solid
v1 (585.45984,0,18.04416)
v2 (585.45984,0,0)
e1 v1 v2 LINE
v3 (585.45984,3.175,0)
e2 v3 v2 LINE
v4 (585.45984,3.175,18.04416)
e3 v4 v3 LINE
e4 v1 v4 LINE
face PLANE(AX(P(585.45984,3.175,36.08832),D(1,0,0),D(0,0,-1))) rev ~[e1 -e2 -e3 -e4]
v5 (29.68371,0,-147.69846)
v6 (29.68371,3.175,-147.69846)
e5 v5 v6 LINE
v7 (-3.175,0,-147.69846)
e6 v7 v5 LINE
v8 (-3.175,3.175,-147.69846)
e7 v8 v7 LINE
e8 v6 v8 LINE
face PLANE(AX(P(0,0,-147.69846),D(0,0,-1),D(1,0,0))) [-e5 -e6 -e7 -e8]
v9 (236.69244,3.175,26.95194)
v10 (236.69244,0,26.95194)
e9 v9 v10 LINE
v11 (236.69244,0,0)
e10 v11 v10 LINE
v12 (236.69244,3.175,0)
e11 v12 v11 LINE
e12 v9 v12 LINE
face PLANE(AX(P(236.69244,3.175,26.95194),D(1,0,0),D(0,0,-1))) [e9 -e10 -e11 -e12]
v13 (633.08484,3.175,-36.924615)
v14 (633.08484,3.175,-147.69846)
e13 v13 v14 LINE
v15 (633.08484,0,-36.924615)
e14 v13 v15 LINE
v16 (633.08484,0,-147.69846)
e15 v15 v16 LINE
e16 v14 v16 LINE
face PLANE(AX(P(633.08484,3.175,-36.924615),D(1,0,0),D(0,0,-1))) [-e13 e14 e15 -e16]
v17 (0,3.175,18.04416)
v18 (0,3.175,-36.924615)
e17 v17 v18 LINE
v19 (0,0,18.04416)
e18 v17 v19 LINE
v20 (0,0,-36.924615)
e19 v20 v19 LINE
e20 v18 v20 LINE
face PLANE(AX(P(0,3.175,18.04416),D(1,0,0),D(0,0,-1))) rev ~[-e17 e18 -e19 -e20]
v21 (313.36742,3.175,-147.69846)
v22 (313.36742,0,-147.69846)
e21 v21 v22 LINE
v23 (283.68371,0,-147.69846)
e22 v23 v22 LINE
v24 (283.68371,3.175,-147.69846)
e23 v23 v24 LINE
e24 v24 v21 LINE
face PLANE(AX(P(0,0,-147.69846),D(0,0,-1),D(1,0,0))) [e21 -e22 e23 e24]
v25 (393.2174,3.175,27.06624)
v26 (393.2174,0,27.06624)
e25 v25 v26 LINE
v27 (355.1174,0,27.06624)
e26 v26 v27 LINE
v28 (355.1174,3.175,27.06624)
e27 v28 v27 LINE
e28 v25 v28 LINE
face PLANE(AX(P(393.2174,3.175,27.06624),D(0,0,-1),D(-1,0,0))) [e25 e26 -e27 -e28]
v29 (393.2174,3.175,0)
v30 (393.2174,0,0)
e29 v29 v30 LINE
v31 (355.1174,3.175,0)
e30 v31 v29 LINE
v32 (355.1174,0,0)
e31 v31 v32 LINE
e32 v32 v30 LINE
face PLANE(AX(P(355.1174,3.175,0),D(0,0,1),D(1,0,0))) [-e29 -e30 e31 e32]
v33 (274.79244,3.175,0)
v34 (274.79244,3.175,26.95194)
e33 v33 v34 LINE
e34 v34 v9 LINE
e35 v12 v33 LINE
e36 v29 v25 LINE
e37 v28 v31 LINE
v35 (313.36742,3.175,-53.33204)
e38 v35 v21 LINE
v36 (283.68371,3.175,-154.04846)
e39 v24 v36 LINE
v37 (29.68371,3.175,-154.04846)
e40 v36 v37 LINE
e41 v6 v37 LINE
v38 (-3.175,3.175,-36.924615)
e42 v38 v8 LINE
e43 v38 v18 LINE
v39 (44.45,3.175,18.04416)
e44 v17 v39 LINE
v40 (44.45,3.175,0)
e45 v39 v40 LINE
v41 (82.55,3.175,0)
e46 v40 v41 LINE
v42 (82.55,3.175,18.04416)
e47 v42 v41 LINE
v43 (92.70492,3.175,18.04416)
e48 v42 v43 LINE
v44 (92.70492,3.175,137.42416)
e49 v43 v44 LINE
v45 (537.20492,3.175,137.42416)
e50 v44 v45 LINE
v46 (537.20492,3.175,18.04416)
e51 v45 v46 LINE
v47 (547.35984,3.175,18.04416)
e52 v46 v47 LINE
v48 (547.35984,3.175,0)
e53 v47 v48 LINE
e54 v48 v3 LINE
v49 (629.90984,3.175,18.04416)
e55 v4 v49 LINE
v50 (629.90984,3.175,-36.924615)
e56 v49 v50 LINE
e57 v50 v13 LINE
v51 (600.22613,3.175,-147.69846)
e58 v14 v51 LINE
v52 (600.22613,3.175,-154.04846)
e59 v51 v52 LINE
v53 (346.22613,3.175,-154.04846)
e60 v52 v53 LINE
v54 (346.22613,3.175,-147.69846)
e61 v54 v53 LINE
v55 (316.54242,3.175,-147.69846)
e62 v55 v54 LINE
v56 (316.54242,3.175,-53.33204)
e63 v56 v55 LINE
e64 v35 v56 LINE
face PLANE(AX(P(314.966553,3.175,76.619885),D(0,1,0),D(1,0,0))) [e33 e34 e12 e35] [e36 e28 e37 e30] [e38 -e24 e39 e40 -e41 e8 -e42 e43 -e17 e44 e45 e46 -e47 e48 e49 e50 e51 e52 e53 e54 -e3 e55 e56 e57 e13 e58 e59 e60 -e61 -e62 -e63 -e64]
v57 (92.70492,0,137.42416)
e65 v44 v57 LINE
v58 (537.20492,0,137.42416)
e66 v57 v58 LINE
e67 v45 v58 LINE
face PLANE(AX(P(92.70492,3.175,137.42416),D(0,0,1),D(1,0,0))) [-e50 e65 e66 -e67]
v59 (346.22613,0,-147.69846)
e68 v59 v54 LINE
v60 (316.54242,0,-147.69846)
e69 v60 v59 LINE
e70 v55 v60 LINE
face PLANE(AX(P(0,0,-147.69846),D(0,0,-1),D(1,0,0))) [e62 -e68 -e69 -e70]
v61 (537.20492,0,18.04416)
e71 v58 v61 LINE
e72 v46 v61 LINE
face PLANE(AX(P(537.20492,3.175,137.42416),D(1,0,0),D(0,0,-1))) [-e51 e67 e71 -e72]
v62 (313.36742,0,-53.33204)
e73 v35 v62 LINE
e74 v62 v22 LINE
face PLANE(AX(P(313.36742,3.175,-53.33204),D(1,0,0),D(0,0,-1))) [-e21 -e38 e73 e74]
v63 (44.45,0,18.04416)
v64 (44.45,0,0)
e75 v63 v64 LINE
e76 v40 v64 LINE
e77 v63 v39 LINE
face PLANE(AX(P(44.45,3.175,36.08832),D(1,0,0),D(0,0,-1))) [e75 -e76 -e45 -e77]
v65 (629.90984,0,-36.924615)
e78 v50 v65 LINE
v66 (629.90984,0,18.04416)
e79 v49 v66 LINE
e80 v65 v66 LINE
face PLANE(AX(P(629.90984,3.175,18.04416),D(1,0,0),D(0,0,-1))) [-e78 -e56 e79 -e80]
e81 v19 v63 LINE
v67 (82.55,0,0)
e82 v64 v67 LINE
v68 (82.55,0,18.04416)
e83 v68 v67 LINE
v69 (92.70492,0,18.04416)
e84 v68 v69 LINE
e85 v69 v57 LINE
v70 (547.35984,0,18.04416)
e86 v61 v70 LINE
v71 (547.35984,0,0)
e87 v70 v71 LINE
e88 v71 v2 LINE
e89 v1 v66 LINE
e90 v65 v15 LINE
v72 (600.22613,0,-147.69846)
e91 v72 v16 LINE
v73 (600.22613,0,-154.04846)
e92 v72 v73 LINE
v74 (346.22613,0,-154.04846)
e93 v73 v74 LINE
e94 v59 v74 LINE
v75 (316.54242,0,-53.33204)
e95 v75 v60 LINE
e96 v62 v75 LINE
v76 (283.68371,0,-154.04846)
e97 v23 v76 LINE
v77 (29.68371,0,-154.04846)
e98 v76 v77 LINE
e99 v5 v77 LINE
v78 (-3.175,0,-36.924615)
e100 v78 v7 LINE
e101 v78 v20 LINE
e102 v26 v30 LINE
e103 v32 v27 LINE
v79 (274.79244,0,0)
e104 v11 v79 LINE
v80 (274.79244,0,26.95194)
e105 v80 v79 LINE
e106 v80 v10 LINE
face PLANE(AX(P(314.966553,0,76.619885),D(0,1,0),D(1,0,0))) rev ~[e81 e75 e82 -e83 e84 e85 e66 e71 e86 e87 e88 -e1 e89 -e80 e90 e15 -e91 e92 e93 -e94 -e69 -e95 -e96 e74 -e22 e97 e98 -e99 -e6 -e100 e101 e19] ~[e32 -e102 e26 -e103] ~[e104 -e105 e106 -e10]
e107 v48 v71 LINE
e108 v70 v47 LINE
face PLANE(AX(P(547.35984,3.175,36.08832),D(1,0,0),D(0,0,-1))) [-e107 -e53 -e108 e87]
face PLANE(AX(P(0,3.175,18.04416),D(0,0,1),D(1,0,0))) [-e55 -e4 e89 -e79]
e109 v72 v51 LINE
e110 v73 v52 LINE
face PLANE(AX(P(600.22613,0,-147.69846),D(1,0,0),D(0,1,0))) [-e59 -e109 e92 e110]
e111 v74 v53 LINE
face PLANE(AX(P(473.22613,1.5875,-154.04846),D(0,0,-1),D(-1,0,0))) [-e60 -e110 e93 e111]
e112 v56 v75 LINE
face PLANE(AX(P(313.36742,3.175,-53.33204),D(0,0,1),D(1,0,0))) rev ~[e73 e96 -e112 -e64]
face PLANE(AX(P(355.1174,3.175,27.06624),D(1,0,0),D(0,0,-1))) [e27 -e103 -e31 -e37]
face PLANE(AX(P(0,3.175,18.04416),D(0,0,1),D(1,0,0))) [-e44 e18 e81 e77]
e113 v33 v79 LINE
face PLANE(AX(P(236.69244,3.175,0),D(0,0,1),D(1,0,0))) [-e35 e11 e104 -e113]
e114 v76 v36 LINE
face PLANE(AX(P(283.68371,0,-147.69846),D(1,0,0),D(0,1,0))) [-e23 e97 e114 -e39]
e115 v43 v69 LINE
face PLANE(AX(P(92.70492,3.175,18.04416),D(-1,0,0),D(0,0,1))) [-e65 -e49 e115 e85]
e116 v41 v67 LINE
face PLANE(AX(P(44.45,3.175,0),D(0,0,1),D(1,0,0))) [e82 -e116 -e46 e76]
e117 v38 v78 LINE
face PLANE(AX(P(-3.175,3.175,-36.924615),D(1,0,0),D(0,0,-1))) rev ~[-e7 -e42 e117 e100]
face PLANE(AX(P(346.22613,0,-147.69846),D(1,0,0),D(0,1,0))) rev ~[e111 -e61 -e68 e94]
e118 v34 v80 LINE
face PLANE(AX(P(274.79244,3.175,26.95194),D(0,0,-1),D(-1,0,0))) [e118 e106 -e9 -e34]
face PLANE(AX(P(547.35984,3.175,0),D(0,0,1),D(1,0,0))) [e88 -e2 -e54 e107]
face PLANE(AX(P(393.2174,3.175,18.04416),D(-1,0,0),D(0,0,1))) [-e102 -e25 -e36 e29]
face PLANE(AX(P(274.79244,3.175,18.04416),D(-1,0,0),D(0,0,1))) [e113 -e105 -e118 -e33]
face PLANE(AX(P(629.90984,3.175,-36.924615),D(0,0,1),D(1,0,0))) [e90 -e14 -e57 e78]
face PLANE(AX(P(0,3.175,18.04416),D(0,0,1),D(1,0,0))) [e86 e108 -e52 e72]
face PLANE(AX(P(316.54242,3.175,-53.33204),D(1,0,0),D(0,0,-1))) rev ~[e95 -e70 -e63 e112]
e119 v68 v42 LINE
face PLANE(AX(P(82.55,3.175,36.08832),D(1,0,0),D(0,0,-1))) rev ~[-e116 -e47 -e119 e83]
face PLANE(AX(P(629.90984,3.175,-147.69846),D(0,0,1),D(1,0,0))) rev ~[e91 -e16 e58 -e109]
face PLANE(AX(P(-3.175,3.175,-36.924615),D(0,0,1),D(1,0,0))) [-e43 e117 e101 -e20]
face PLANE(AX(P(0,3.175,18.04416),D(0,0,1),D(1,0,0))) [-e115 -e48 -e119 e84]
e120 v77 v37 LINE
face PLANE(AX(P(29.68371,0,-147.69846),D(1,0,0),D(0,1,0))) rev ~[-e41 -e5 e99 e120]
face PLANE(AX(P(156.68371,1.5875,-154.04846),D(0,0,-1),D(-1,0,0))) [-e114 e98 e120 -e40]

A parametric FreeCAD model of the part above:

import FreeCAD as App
import Part
import Sketcher
from FreeCAD import Vector
Q = App.Units.Quantity

doc = App.newDocument("Part")
params = doc.addObject("Spreadsheet::Sheet", "Params")
for row, (alias, value) in enumerate([
    ("pad1_length", "0.125 in"),
    ("sketch2_width", "10 in"),
    ("sketch2_height", "0.125 in"),
    ("pad2_length", "0.25 in"),
    ("sketch3_width", "0.125 in"),
    ("pocket1_length", "0.125 in"),
    ("sketch4_width", "0.125 in"),
    ("pad3_length", "0.125 in"),
    ("pad4_length", "0.125 in"),
    ("sketch6_width", "1.5 in"),
    ("sketch7_width", "17.5 in"),
    ("sketch7_width2", "1.5 in"),
    ("sketch7_height", "4.7 in"),
    ("pad5_length", "0.125 in"),
], start=1):
    params.set(f"A{row}", alias)
    params.set(f"B{row}", "=" + value)
    params.setAlias(f"B{row}", alias)

body = doc.addObject("PartDesign::Body", "Body")

sketch1 = body.newObject("Sketcher::SketchObject", "Sketch")
sketch1.AttachmentSupport = (doc.getObject("XZ_Plane"), [""])
sketch1.MapMode = "FlatFace"
sketch1.addGeometry([
    Part.LineSegment(Vector(0, -148, 0), Vector(0, 0, 0)),
    Part.LineSegment(Vector(0, 0, 0), Vector(630, 0, 0)),
    Part.LineSegment(Vector(630, 0, 0), Vector(630, -148, 0)),
    Part.LineSegment(Vector(630, -148, 0), Vector(0, -148, 0)),
], False)
sketch1.addConstraint([
    Sketcher.Constraint("Coincident", 0, 2, 1, 1),
    Sketcher.Constraint("Coincident", 1, 2, 2, 1),
    Sketcher.Constraint("Coincident", 2, 2, 3, 1),
    Sketcher.Constraint("Coincident", 3, 2, 0, 1),
    Sketcher.Constraint("Vertical", 0),
    Sketcher.Constraint("Horizontal", 1),
    Sketcher.Constraint("Vertical", 2),
    Sketcher.Constraint("Horizontal", 3),
    Sketcher.Constraint("Coincident", 0, 2, -1, 1),
    Sketcher.Constraint("DistanceX", 1, 1, 1, 2, Q("24.7996 in")),
    Sketcher.Constraint("DistanceY", 0, 1, 0, 2, Q("5.8149 in")),
])
pad1 = body.newObject("PartDesign::Pad", "Pad")
pad1.Profile = sketch1
pad1.setExpression("Length", "Params.pad1_length")
pad1.Reversed = True

sketch2 = body.newObject("Sketcher::SketchObject", "Sketch001")
sketch2.AttachmentSupport = (doc.getObject("XY_Plane"), [""])
sketch2.MapMode = "FlatFace"
sketch2.AttachmentOffset = App.Placement(Vector(0, 0, -5.8149 * 25.4), App.Rotation())
sketch2.addGeometry([
    Part.LineSegment(Vector(600.2, 3.2, 0), Vector(600.2, 0, 0)),
    Part.LineSegment(Vector(600.2, 0, 0), Vector(346.2, 0, 0)),
    Part.LineSegment(Vector(346.2, 0, 0), Vector(346.2, 3.2, 0)),
    Part.LineSegment(Vector(346.2, 3.2, 0), Vector(600.2, 3.2, 0)),
    Part.LineSegment(Vector(283.7, 3.2, 0), Vector(283.7, 0, 0)),
    Part.LineSegment(Vector(283.7, 0, 0), Vector(29.7, 0, 0)),
    Part.LineSegment(Vector(29.7, 0, 0), Vector(29.7, 3.2, 0)),
    Part.LineSegment(Vector(29.7, 3.2, 0), Vector(283.7, 3.2, 0)),
], False)
sketch2.addConstraint([
    Sketcher.Constraint("Coincident", 0, 2, 1, 1),
    Sketcher.Constraint("Coincident", 1, 2, 2, 1),
    Sketcher.Constraint("Coincident", 2, 2, 3, 1),
    Sketcher.Constraint("Coincident", 3, 2, 0, 1),
    Sketcher.Constraint("Coincident", 4, 2, 5, 1),
    Sketcher.Constraint("Coincident", 5, 2, 6, 1),
    Sketcher.Constraint("Coincident", 6, 2, 7, 1),
    Sketcher.Constraint("Coincident", 7, 2, 4, 1),
    Sketcher.Constraint("Vertical", 0),
    Sketcher.Constraint("Horizontal", 1),
    Sketcher.Constraint("Vertical", 2),
    Sketcher.Constraint("Horizontal", 3),
    Sketcher.Constraint("Vertical", 4),
    Sketcher.Constraint("Horizontal", 5),
    Sketcher.Constraint("Vertical", 6),
    Sketcher.Constraint("Horizontal", 7),
    Sketcher.Constraint("PointOnObject", 0, 2, -1),
    Sketcher.Constraint("PointOnObject", 4, 2, -1),
    Sketcher.Constraint("Horizontal", 3, 2, 6, 2),
    Sketcher.Constraint("Equal", 3, 5),
    Sketcher.Constraint("DistanceX", 1, 2, 1, 1, Q("10 in")),
    Sketcher.Constraint("DistanceY", 0, 2, 0, 1, Q("0.125 in")),
    Sketcher.Constraint("DistanceX", 4, 2, 1, 2, Q("2.4623 in")),
    Sketcher.Constraint("DistanceX", -1, 1, 0, 2, 600.22613),
])
sketch2.setExpression("Constraints[20]", "Params.sketch2_width")
sketch2.setExpression("Constraints[21]", "Params.sketch2_height")
pad2 = body.newObject("PartDesign::Pad", "Pad001")
pad2.Profile = sketch2
pad2.setExpression("Length", "Params.pad2_length")
pad2.Reversed = True

sketch3 = body.newObject("Sketcher::SketchObject", "Sketch002")
sketch3.AttachmentSupport = (doc.getObject("XZ_Plane"), [""])
sketch3.MapMode = "FlatFace"
sketch3.AttachmentOffset = App.Placement(Vector(0, 0, -0.125 * 25.4), App.Rotation())
sketch3.addGeometry([
    Part.LineSegment(Vector(313.4, -242.1, 0), Vector(313.4, -53.3, 0)),
    Part.LineSegment(Vector(313.4, -53.3, 0), Vector(316.5, -53.3, 0)),
    Part.LineSegment(Vector(316.5, -53.3, 0), Vector(316.5, -242.1, 0)),
    Part.LineSegment(Vector(316.5, -242.1, 0), Vector(313.4, -242.1, 0)),
], False)
sketch3.addConstraint([
    Sketcher.Constraint("Coincident", 0, 2, 1, 1),
    Sketcher.Constraint("Coincident", 1, 2, 2, 1),
    Sketcher.Constraint("Coincident", 2, 2, 3, 1),
    Sketcher.Constraint("Coincident", 3, 2, 0, 1),
    Sketcher.Constraint("Vertical", 0),
    Sketcher.Constraint("Horizontal", 1),
    Sketcher.Constraint("Vertical", 2),
    Sketcher.Constraint("Horizontal", 3),
    Sketcher.Constraint("DistanceX", 1, 1, 1, 2, Q("0.125 in")),
    Sketcher.Constraint("DistanceX", -1, 1, 0, 2, Q("12.3373 in")),
    Sketcher.Constraint("DistanceY", 0, 1, 0, 2, 188.73284),
    Sketcher.Constraint("DistanceY", 0, 2, -1, 1, 53.33204),
])
sketch3.setExpression("Constraints[8]", "Params.sketch3_width")
pocket1 = body.newObject("PartDesign::Pocket", "Pocket")
pocket1.Profile = sketch3
pocket1.setExpression("Length", "Params.pocket1_length")
pocket1.Reversed = True

sketch4 = body.newObject("Sketcher::SketchObject", "Sketch003")
sketch4.AttachmentSupport = (doc.getObject("XZ_Plane"), [""])
sketch4.MapMode = "FlatFace"
sketch4.AttachmentOffset = App.Placement(Vector(0, 0, -0.125 * 25.4), App.Rotation())
sketch4.addGeometry([
    Part.LineSegment(Vector(629.9, -147.7, 0), Vector(629.9, -36.9, 0)),
    Part.LineSegment(Vector(629.9, -36.9, 0), Vector(633.1, -36.9, 0)),
    Part.LineSegment(Vector(633.1, -36.9, 0), Vector(633.1, -147.7, 0)),
    Part.LineSegment(Vector(633.1, -147.7, 0), Vector(629.9, -147.7, 0)),
    Part.LineSegment(Vector(-3.2, -147.7, 0), Vector(-3.2, -36.9, 0)),
    Part.LineSegment(Vector(-3.2, -36.9, 0), Vector(0, -36.9, 0)),
    Part.LineSegment(Vector(0, -36.9, 0), Vector(0, -147.7, 0)),
    Part.LineSegment(Vector(0, -147.7, 0), Vector(-3.2, -147.7, 0)),
], False)
sketch4.addConstraint([
    Sketcher.Constraint("Coincident", 0, 2, 1, 1),
    Sketcher.Constraint("Coincident", 1, 2, 2, 1),
    Sketcher.Constraint("Coincident", 2, 2, 3, 1),
    Sketcher.Constraint("Coincident", 3, 2, 0, 1),
    Sketcher.Constraint("Coincident", 4, 2, 5, 1),
    Sketcher.Constraint("Coincident", 5, 2, 6, 1),
    Sketcher.Constraint("Coincident", 6, 2, 7, 1),
    Sketcher.Constraint("Coincident", 7, 2, 4, 1),
    Sketcher.Constraint("Vertical", 0),
    Sketcher.Constraint("Horizontal", 1),
    Sketcher.Constraint("Vertical", 2),
    Sketcher.Constraint("Horizontal", 3),
    Sketcher.Constraint("Vertical", 4),
    Sketcher.Constraint("Horizontal", 5),
    Sketcher.Constraint("Vertical", 6),
    Sketcher.Constraint("Horizontal", 7),
    Sketcher.Constraint("PointOnObject", 5, 2, -2),
    Sketcher.Constraint("Horizontal", 1, 2, 4, 2),
    Sketcher.Constraint("Horizontal", 3, 2, 6, 2),
    Sketcher.Constraint("Equal", 3, 5),
    Sketcher.Constraint("DistanceX", 1, 1, 1, 2, Q("0.125 in")),
    Sketcher.Constraint("DistanceX", -1, 1, 0, 2, Q("24.7996 in")),
    Sketcher.Constraint("DistanceY", 2, 2, -1, 1, Q("5.8149 in")),
    Sketcher.Constraint("DistanceY", 0, 1, 0, 2, 110.773845),
])
sketch4.setExpression("Constraints[20]", "Params.sketch4_width")
pad3 = body.newObject("PartDesign::Pad", "Pad002")
pad3.Profile = sketch4
pad3.setExpression("Length", "Params.pad3_length")

sketch5 = body.newObject("Sketcher::SketchObject", "Sketch004")
sketch5.AttachmentSupport = (doc.getObject("XZ_Plane"), [""])
sketch5.MapMode = "FlatFace"
sketch5.AttachmentOffset = App.Placement(Vector(0, 0, -0.125 * 25.4), App.Rotation())
sketch5.addGeometry([
    Part.LineSegment(Vector(0, 0, 0), Vector(0, 18, 0)),
    Part.LineSegment(Vector(0, 18, 0), Vector(630, 18, 0)),
    Part.LineSegment(Vector(630, 18, 0), Vector(630, 0, 0)),
    Part.LineSegment(Vector(630, 0, 0), Vector(0, 0, 0)),
], False)
sketch5.addConstraint([
    Sketcher.Constraint("Coincident", 0, 2, 1, 1),
    Sketcher.Constraint("Coincident", 1, 2, 2, 1),
    Sketcher.Constraint("Coincident", 2, 2, 3, 1),
    Sketcher.Constraint("Coincident", 3, 2, 0, 1),
    Sketcher.Constraint("Vertical", 0),
    Sketcher.Constraint("Horizontal", 1),
    Sketcher.Constraint("Vertical", 2),
    Sketcher.Constraint("Horizontal", 3),
    Sketcher.Constraint("Coincident", 3, 2, -1, 1),
    Sketcher.Constraint("DistanceX", 1, 1, 1, 2, Q("24.7996 in")),
    Sketcher.Constraint("DistanceY", 0, 1, 0, 2, Q("0.7104 in")),
])
pad4 = body.newObject("PartDesign::Pad", "Pad003")
pad4.Profile = sketch5
pad4.setExpression("Length", "Params.pad4_length")

sketch6 = body.newObject("Sketcher::SketchObject", "Sketch005")
sketch6.AttachmentSupport = (doc.getObject("XZ_Plane"), [""])
sketch6.MapMode = "FlatFace"
sketch6.AttachmentOffset = App.Placement(Vector(0, 0, -0.125 * 25.4), App.Rotation())
sketch6.addGeometry([
    Part.LineSegment(Vector(355, 0, 0), Vector(355, 18, 0)),
    Part.LineSegment(Vector(355, 18, 0), Vector(393, 18, 0)),
    Part.LineSegment(Vector(393, 18, 0), Vector(393, 0, 0)),
    Part.LineSegment(Vector(393, 0, 0), Vector(355, 0, 0)),
    Part.LineSegment(Vector(237, 0, 0), Vector(237, 18, 0)),
    Part.LineSegment(Vector(237, 18, 0), Vector(275, 18, 0)),
    Part.LineSegment(Vector(275, 18, 0), Vector(275, 0, 0)),
    Part.LineSegment(Vector(275, 0, 0), Vector(237, 0, 0)),
    Part.LineSegment(Vector(547, 0, 0), Vector(547, 36, 0)),
    Part.LineSegment(Vector(547, 36, 0), Vector(585, 36, 0)),
    Part.LineSegment(Vector(585, 36, 0), Vector(585, 0, 0)),
    Part.LineSegment(Vector(585, 0, 0), Vector(547, 0, 0)),
    Part.LineSegment(Vector(44, 0, 0), Vector(44, 36, 0)),
    Part.LineSegment(Vector(44, 36, 0), Vector(83, 36, 0)),
    Part.LineSegment(Vector(83, 36, 0), Vector(83, 0, 0)),
    Part.LineSegment(Vector(83, 0, 0), Vector(44, 0, 0)),
], False)
sketch6.addConstraint([
    Sketcher.Constraint("Coincident", 0, 2, 1, 1),
    Sketcher.Constraint("Coincident", 1, 2, 2, 1),
    Sketcher.Constraint("Coincident", 2, 2, 3, 1),
    Sketcher.Constraint("Coincident", 3, 2, 0, 1),
    Sketcher.Constraint("Coincident", 4, 2, 5, 1),
    Sketcher.Constraint("Coincident", 5, 2, 6, 1),
    Sketcher.Constraint("Coincident", 6, 2, 7, 1),
    Sketcher.Constraint("Coincident", 7, 2, 4, 1),
    Sketcher.Constraint("Coincident", 8, 2, 9, 1),
    Sketcher.Constraint("Coincident", 9, 2, 10, 1),
    Sketcher.Constraint("Coincident", 10, 2, 11, 1),
    Sketcher.Constraint("Coincident", 11, 2, 8, 1),
    Sketcher.Constraint("Coincident", 12, 2, 13, 1),
    Sketcher.Constraint("Coincident", 13, 2, 14, 1),
    Sketcher.Constraint("Coincident", 14, 2, 15, 1),
    Sketcher.Constraint("Coincident", 15, 2, 12, 1),
    Sketcher.Constraint("Vertical", 0),
    Sketcher.Constraint("Horizontal", 1),
    Sketcher.Constraint("Vertical", 2),
    Sketcher.Constraint("Horizontal", 3),
    Sketcher.Constraint("Vertical", 4),
    Sketcher.Constraint("Horizontal", 5),
    Sketcher.Constraint("Vertical", 6),
    Sketcher.Constraint("Horizontal", 7),
    Sketcher.Constraint("Vertical", 8),
    Sketcher.Constraint("Horizontal", 9),
    Sketcher.Constraint("Vertical", 10),
    Sketcher.Constraint("Horizontal", 11),
    Sketcher.Constraint("Vertical", 12),
    Sketcher.Constraint("Horizontal", 13),
    Sketcher.Constraint("Vertical", 14),
    Sketcher.Constraint("Horizontal", 15),
    Sketcher.Constraint("PointOnObject", 2, 2, -1),
    Sketcher.Constraint("PointOnObject", 6, 2, -1),
    Sketcher.Constraint("PointOnObject", 10, 2, -1),
    Sketcher.Constraint("PointOnObject", 14, 2, -1),
    Sketcher.Constraint("Horizontal", 1, 2, 4, 2),
    Sketcher.Constraint("Horizontal", 9, 2, 12, 2),
    Sketcher.Constraint("Equal", 3, 5),
    Sketcher.Constraint("Equal", 7, 9),
    Sketcher.Constraint("Equal", 11, 13),
    Sketcher.Constraint("DistanceX", 1, 1, 1, 2, Q("1.5 in")),
    Sketcher.Constraint("DistanceX", -1, 1, 12, 2, Q("1.75 in")),
    Sketcher.Constraint("DistanceY", 0, 1, 0, 2, Q("0.7104 in")),
    Sketcher.Constraint("DistanceY", 8, 1, 8, 2, Q("1.4208 in")),
    Sketcher.Constraint("DistanceX", -1, 1, 0, 2, Q("13.981 in")),
    Sketcher.Constraint("DistanceX", 5, 2, 8, 2, Q("10.731 in")),
    Sketcher.Constraint("DistanceX", -1, 1, 4, 2, Q("9.3186 in")),
])
sketch6.setExpression("Constraints[41]", "Params.sketch6_width")
pocket2 = body.newObject("PartDesign::Pocket", "Pocket001")
pocket2.Profile = sketch6
pocket2.Type = "ThroughAll"
pocket2.Reversed = True

sketch7 = body.newObject("Sketcher::SketchObject", "Sketch006")
sketch7.AttachmentSupport = (doc.getObject("XZ_Plane"), [""])
sketch7.MapMode = "FlatFace"
sketch7.AttachmentOffset = App.Placement(Vector(0, 0, -0.125 * 25.4), App.Rotation())
sketch7.addGeometry([
    Part.LineSegment(Vector(93, 18, 0), Vector(93, 137, 0)),
    Part.LineSegment(Vector(93, 137, 0), Vector(537, 137, 0)),
    Part.LineSegment(Vector(537, 137, 0), Vector(537, 18, 0)),
    Part.LineSegment(Vector(537, 18, 0), Vector(393, 18, 0)),
    Part.LineSegment(Vector(393, 18, 0), Vector(393, 27, 0)),
    Part.LineSegment(Vector(393, 27, 0), Vector(355, 27, 0)),
    Part.LineSegment(Vector(355, 27, 0), Vector(355, 18, 0)),
    Part.LineSegment(Vector(355, 18, 0), Vector(275, 18, 0)),
    Part.LineSegment(Vector(275, 18, 0), Vector(275, 27, 0)),
    Part.LineSegment(Vector(275, 27, 0), Vector(237, 27, 0)),
    Part.LineSegment(Vector(237, 27, 0), Vector(237, 18, 0)),
    Part.LineSegment(Vector(237, 18, 0), Vector(93, 18, 0)),
], False)
sketch7.addConstraint([
    Sketcher.Constraint("Coincident", 0, 2, 1, 1),
    Sketcher.Constraint("Coincident", 1, 2, 2, 1),
    Sketcher.Constraint("Coincident", 2, 2, 3, 1),
    Sketcher.Constraint("Coincident", 3, 2, 4, 1),
    Sketcher.Constraint("Coincident", 4, 2, 5, 1),
    Sketcher.Constraint("Coincident", 5, 2, 6, 1),
    Sketcher.Constraint("Coincident", 6, 2, 7, 1),
    Sketcher.Constraint("Coincident", 7, 2, 8, 1),
    Sketcher.Constraint("Coincident", 8, 2, 9, 1),
    Sketcher.Constraint("Coincident", 9, 2, 10, 1),
    Sketcher.Constraint("Coincident", 10, 2, 11, 1),
    Sketcher.Constraint("Coincident", 11, 2, 0, 1),
    Sketcher.Constraint("Vertical", 0),
    Sketcher.Constraint("Horizontal", 1),
    Sketcher.Constraint("Vertical", 2),
    Sketcher.Constraint("Horizontal", 3),
    Sketcher.Constraint("Vertical", 4),
    Sketcher.Constraint("Horizontal", 5),
    Sketcher.Constraint("Vertical", 6),
    Sketcher.Constraint("Horizontal", 7),
    Sketcher.Constraint("Vertical", 8),
    Sketcher.Constraint("Horizontal", 9),
    Sketcher.Constraint("Vertical", 10),
    Sketcher.Constraint("Horizontal", 11),
    Sketcher.Constraint("Horizontal", 3, 2, 6, 2),
    Sketcher.Constraint("Horizontal", 7, 2, 10, 2),
    Sketcher.Constraint("Equal", 5, 9),
    Sketcher.Constraint("Equal", 3, 11),
    Sketcher.Constraint("DistanceX", 1, 1, 1, 2, Q("17.5 in")),
    Sketcher.Constraint("DistanceX", 5, 2, 5, 1, Q("1.5 in")),
    Sketcher.Constraint("DistanceY", 0, 1, 0, 2, Q("4.7 in")),
    Sketcher.Constraint("DistanceX", 3, 2, 3, 1, Q("5.6688 in")),
    Sketcher.Constraint("DistanceY", 4, 1, 4, 2, Q("0.3552 in")),
    Sketcher.Constraint("DistanceY", 8, 1, 8, 2, Q("0.3507 in")),
    Sketcher.Constraint("DistanceX", -1, 1, 3, 2, Q("15.481 in")),
    Sketcher.Constraint("DistanceY", -1, 1, 0, 2, Q("5.4104 in")),
])
sketch7.setExpression("Constraints[28]", "Params.sketch7_width")
sketch7.setExpression("Constraints[29]", "Params.sketch7_width2")
sketch7.setExpression("Constraints[30]", "Params.sketch7_height")
pad5 = body.newObject("PartDesign::Pad", "Pad004")
pad5.Profile = sketch7
pad5.setExpression("Length", "Params.pad5_length")

doc.recompute()
